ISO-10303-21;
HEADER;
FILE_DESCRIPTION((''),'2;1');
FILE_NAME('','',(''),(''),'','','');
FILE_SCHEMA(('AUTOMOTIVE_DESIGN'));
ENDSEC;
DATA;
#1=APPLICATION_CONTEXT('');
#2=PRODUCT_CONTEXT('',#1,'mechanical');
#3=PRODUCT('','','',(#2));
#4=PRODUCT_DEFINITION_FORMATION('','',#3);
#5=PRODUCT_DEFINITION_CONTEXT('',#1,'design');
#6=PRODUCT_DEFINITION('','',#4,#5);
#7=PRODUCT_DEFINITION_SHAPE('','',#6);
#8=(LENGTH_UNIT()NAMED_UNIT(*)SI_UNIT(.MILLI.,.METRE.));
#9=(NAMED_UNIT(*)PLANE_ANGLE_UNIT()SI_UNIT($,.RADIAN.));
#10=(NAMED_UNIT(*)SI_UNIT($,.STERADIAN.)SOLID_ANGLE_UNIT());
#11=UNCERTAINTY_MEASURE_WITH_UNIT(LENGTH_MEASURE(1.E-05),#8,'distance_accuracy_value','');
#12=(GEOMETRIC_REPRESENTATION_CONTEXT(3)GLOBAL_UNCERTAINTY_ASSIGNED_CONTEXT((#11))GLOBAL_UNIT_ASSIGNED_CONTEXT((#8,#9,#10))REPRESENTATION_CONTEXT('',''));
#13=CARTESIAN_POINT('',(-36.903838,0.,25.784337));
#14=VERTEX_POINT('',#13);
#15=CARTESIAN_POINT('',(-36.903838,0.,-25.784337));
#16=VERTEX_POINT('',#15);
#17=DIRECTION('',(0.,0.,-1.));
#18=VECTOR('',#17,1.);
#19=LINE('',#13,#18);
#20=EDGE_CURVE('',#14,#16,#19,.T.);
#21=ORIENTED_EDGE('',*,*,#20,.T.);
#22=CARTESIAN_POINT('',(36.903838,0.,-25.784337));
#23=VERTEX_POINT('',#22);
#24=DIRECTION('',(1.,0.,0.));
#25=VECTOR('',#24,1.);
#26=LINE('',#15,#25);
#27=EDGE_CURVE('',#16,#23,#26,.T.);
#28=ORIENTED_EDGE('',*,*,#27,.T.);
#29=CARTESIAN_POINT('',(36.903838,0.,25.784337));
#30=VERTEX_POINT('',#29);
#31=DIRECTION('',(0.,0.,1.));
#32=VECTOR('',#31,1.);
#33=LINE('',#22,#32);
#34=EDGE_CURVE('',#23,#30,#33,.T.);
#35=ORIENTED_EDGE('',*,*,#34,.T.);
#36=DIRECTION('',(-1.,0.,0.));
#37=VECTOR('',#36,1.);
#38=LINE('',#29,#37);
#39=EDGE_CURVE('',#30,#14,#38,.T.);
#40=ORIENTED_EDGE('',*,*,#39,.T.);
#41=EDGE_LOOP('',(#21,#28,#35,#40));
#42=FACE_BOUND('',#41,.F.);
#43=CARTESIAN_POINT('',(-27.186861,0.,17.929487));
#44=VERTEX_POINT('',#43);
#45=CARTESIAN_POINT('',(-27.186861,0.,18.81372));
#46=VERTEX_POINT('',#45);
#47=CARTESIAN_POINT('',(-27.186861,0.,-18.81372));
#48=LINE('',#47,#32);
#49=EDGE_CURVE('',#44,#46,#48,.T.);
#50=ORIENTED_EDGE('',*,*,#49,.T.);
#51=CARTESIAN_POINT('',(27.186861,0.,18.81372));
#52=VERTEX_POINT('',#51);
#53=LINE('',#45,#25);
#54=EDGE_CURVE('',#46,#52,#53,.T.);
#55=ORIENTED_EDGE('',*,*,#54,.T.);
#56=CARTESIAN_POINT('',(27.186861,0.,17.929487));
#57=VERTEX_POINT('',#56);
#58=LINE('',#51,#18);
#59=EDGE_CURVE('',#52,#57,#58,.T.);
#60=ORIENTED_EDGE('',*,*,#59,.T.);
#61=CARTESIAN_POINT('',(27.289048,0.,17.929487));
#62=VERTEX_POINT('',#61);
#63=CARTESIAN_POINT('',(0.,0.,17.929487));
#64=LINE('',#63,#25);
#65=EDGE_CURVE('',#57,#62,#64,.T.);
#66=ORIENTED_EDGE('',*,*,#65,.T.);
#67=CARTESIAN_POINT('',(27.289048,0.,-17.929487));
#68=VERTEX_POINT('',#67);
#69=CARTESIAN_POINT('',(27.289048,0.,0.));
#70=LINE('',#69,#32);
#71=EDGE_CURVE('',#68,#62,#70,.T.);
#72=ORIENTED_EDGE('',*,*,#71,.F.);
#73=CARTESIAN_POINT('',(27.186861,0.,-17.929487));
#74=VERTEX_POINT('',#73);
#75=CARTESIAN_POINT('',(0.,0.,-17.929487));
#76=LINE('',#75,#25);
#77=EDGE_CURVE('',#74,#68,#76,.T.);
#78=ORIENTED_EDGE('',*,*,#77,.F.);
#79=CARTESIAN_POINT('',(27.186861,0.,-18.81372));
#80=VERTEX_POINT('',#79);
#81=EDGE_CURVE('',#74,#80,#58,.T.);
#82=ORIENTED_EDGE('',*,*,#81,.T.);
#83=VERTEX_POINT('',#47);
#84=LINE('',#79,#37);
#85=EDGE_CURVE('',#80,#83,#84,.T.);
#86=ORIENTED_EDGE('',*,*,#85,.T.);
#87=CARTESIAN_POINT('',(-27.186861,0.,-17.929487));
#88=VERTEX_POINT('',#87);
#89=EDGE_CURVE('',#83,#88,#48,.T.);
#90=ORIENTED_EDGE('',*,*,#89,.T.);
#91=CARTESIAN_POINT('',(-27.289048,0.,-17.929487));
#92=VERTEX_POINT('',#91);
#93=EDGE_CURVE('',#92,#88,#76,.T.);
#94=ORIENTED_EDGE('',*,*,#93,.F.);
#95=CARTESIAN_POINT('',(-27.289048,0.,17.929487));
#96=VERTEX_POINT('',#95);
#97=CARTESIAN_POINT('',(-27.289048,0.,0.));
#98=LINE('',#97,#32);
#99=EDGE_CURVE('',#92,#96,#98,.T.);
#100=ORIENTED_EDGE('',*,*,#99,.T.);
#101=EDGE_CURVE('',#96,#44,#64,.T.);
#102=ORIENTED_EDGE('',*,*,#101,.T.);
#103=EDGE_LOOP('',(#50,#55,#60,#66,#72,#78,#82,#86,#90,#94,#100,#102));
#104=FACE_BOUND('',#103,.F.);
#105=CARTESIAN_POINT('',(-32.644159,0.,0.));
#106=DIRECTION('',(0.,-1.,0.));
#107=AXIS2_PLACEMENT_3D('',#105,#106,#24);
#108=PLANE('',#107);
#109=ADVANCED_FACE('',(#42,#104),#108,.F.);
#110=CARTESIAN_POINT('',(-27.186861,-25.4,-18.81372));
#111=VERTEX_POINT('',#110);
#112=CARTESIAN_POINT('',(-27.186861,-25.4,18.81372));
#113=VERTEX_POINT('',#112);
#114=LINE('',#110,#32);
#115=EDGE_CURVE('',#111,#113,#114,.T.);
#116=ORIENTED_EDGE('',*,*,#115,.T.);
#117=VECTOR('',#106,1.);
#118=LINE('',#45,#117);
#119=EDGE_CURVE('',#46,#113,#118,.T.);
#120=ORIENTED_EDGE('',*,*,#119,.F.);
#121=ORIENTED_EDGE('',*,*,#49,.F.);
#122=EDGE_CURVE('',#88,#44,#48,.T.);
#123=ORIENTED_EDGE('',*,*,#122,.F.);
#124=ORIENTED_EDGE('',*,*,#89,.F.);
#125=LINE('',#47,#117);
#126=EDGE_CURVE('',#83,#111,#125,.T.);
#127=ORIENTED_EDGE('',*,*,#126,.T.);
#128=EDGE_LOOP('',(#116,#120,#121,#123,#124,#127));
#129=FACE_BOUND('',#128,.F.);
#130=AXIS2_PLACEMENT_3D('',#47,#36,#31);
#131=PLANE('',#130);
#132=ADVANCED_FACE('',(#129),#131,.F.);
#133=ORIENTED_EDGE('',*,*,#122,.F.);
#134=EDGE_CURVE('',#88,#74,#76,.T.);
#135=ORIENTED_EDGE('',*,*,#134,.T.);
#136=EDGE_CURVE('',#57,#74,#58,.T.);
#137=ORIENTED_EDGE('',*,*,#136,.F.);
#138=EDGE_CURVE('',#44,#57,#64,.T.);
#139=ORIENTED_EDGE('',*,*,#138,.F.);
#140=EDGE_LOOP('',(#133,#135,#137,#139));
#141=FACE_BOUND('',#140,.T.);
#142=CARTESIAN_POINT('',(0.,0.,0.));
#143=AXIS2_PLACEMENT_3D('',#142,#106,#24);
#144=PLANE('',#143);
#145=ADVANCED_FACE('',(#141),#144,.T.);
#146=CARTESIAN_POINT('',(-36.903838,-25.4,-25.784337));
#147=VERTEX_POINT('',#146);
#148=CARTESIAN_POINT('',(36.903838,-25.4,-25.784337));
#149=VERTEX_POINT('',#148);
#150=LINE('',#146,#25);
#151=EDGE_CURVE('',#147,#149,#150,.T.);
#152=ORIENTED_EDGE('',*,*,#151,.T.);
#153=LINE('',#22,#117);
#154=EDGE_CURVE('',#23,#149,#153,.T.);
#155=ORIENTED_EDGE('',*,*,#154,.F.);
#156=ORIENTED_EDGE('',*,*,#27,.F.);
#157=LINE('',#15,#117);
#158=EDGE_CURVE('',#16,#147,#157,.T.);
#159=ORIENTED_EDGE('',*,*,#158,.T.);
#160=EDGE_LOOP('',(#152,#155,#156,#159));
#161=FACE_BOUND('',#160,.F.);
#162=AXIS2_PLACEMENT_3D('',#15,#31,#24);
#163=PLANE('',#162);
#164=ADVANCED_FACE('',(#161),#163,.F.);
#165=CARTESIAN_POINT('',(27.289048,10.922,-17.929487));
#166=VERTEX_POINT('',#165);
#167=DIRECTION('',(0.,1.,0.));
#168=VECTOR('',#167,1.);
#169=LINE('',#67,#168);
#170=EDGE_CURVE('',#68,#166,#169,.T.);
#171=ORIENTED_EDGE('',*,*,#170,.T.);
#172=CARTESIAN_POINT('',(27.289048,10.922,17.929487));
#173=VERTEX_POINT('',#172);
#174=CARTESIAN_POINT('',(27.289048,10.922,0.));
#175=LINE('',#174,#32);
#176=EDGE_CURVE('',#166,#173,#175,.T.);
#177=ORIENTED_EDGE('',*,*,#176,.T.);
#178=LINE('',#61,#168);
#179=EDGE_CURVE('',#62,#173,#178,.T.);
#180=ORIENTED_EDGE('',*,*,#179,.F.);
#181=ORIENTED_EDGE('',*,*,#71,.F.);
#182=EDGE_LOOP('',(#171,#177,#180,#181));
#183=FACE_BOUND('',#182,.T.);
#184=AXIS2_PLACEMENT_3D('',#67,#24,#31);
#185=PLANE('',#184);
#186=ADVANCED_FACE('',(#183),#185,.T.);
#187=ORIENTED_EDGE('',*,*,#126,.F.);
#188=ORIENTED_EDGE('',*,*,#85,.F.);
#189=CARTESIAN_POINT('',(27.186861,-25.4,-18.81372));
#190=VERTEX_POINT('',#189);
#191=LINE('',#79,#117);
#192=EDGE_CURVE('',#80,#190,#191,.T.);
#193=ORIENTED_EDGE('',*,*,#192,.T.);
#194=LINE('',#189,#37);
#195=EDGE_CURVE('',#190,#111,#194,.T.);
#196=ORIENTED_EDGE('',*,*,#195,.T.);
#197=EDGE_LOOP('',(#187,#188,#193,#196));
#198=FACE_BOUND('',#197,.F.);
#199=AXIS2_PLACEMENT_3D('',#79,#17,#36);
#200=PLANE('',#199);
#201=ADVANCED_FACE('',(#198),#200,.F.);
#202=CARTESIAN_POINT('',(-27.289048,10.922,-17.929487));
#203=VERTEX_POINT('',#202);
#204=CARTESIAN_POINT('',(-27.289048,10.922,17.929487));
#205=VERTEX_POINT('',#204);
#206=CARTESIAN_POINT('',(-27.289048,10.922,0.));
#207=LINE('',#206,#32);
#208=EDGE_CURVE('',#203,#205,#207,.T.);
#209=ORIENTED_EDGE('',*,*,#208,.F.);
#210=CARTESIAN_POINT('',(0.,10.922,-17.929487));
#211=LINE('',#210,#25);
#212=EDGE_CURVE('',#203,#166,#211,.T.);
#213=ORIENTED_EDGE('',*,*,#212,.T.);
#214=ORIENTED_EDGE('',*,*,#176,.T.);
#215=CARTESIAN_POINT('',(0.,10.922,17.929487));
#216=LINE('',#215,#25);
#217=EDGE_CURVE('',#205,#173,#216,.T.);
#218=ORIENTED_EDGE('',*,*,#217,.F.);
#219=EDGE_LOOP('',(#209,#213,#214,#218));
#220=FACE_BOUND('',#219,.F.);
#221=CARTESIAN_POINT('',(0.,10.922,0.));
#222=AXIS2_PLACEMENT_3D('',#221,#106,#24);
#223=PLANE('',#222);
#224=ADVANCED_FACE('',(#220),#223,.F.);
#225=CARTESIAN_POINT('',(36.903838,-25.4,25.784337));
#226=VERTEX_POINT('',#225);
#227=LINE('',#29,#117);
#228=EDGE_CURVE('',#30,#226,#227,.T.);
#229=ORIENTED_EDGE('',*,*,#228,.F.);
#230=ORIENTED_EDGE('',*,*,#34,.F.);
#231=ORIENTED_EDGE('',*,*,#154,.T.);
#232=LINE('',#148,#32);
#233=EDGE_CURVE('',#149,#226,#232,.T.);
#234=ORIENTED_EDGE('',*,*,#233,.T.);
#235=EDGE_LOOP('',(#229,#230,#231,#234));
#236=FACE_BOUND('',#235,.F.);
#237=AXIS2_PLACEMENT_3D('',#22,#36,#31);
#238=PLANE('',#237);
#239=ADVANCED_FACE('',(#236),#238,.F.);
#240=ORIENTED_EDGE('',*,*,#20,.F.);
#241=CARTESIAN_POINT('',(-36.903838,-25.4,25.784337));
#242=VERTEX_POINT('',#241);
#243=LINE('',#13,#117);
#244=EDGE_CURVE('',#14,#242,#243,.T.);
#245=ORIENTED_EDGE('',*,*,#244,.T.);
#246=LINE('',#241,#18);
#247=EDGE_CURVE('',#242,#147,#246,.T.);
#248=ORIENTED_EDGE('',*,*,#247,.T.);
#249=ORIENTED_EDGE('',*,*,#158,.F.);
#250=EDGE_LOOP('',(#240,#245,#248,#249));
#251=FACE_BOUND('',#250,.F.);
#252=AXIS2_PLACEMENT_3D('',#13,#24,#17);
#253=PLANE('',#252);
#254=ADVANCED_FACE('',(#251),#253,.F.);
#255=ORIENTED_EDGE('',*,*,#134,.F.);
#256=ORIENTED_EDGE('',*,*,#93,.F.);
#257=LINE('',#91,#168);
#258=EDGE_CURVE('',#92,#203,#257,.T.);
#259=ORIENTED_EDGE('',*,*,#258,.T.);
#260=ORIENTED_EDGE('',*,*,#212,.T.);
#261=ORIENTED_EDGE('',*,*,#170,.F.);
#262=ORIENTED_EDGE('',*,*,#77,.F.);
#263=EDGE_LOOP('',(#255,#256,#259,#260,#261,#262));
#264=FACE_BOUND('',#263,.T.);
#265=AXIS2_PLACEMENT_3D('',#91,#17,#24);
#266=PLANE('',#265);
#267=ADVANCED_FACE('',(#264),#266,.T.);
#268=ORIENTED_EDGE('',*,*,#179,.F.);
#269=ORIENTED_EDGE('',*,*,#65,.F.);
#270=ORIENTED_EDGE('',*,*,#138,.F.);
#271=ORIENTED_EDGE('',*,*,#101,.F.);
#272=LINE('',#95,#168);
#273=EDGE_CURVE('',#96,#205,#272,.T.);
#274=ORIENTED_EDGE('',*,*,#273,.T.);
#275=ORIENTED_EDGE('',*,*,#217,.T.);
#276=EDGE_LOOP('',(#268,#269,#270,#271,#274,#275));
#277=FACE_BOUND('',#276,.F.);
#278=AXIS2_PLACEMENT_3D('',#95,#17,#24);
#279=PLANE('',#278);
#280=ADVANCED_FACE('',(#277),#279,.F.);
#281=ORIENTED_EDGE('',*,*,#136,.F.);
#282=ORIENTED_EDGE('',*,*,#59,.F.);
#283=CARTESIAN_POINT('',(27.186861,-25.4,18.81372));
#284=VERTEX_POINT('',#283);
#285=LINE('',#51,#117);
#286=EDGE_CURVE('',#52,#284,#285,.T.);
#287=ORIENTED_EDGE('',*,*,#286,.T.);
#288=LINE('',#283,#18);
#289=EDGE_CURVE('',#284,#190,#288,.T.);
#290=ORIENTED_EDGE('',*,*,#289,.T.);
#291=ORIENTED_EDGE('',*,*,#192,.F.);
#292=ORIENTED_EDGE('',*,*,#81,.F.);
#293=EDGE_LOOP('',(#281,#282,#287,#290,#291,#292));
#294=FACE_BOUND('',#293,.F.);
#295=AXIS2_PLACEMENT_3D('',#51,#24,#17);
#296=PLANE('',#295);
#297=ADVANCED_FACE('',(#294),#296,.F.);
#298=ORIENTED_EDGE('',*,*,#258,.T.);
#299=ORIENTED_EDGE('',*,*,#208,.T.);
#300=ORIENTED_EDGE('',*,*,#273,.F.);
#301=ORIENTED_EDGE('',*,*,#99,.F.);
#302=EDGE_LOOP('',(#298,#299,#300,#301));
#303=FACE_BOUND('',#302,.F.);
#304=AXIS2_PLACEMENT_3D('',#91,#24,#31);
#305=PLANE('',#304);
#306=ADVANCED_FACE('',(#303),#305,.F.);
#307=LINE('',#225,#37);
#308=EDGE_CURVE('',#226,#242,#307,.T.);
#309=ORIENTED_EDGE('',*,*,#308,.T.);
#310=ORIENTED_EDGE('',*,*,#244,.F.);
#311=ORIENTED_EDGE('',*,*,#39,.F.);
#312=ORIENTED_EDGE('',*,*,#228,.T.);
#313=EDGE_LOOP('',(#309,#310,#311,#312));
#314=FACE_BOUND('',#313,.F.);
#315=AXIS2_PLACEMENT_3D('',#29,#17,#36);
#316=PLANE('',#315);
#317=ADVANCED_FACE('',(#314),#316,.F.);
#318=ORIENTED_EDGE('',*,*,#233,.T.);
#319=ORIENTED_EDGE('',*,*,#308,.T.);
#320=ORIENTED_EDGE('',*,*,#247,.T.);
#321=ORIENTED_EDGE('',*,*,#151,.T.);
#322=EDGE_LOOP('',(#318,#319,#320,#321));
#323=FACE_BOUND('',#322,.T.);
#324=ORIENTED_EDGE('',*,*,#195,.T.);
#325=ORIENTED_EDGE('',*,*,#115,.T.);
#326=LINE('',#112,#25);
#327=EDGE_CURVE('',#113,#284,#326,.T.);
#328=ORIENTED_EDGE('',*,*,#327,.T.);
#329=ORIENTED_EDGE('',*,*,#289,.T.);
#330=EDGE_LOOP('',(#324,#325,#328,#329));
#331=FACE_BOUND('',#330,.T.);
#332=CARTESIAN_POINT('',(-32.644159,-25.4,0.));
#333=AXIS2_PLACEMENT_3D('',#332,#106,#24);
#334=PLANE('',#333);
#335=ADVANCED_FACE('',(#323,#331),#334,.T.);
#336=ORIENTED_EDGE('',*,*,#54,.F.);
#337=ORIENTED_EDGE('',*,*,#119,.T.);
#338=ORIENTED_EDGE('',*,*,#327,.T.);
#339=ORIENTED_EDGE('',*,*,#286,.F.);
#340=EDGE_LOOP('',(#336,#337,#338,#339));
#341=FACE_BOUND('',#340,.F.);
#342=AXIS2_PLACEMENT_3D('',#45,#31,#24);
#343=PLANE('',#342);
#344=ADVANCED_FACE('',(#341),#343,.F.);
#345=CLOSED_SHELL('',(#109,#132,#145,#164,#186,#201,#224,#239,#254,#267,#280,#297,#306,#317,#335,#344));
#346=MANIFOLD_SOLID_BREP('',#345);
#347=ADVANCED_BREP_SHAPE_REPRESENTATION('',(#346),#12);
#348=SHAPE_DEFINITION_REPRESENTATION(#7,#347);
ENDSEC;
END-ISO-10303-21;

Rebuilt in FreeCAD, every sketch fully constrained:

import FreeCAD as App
import Part
import Sketcher
Q = App.Units.Quantity


def add_polygon(sketch, points):
    """Adds a closed chain of lines whose ends are joined by coincident constraints."""
    first, n = sketch.GeometryCount, len(points)
    for a, b in zip(points, points[1:] + points[:1]):
        sketch.addGeometry(Part.LineSegment(App.Vector(*a, 0), App.Vector(*b, 0)), False)
    for i in range(n):
        sketch.addConstraint(Sketcher.Constraint("Coincident", first + i, 2, first + (i + 1) % n, 1))

doc = App.newDocument("Part")
body = doc.addObject("PartDesign::Body", "Body")

sketch1 = body.newObject("Sketcher::SketchObject", "Sketch")
sketch1.AttachmentSupport = (doc.getObject("XZ_Plane"), [""])
sketch1.MapMode = "FlatFace"
add_polygon(sketch1, [(-37, 26), (-37, -26), (37, -26), (37, 26)])
add_polygon(sketch1, [(-27, -19), (-27, 19), (27, 19), (27, -19)])
sketch1.addConstraint([
    Sketcher.Constraint("Vertical", 0),
    Sketcher.Constraint("Horizontal", 1),
    Sketcher.Constraint("Vertical", 2),
    Sketcher.Constraint("Horizontal", 3),
    Sketcher.Constraint("Vertical", 4),
    Sketcher.Constraint("Horizontal", 5),
    Sketcher.Constraint("Vertical", 6),
    Sketcher.Constraint("Horizontal", 7),
    Sketcher.Constraint("Symmetric", 0, 2, 2, 2, -1, 1),
    Sketcher.Constraint("Symmetric", 4, 2, 6, 2, -1, 1),
    Sketcher.Constraint("DistanceY", 4, 1, 4, 2, 37.62744),
    Sketcher.Constraint("DistanceX", 4, 2, 2, 2, 64.090699),
    Sketcher.Constraint("DistanceX", 1, 1, 1, 2, 73.807676),
    Sketcher.Constraint("DistanceY", 0, 2, 0, 1, 51.568674),
])
pad1 = body.newObject("PartDesign::Pad", "Pad")
pad1.Profile = sketch1
pad1.Length = Q("1 in")

sketch2 = body.newObject("Sketcher::SketchObject", "Sketch001")
sketch2.AttachmentSupport = (doc.getObject("XZ_Plane"), [""])
sketch2.MapMode = "FlatFace"
add_polygon(sketch2, [(-27, 18), (-27, -18), (27, -18), (27, 18)])
sketch2.addConstraint([
    Sketcher.Constraint("Vertical", 0),
    Sketcher.Constraint("Horizontal", 1),
    Sketcher.Constraint("Vertical", 2),
    Sketcher.Constraint("Horizontal", 3),
    Sketcher.Constraint("Symmetric", 0, 2, 2, 2, -1, 1),
    Sketcher.Constraint("DistanceX", 1, 1, 1, 2, 54.578096),
    Sketcher.Constraint("DistanceY", 0, 2, 0, 1, 35.858974),
])
pad2 = body.newObject("PartDesign::Pad", "Pad001")
pad2.Profile = sketch2
pad2.Length = Q("0.43 in")
pad2.Reversed = True

doc.recompute()
